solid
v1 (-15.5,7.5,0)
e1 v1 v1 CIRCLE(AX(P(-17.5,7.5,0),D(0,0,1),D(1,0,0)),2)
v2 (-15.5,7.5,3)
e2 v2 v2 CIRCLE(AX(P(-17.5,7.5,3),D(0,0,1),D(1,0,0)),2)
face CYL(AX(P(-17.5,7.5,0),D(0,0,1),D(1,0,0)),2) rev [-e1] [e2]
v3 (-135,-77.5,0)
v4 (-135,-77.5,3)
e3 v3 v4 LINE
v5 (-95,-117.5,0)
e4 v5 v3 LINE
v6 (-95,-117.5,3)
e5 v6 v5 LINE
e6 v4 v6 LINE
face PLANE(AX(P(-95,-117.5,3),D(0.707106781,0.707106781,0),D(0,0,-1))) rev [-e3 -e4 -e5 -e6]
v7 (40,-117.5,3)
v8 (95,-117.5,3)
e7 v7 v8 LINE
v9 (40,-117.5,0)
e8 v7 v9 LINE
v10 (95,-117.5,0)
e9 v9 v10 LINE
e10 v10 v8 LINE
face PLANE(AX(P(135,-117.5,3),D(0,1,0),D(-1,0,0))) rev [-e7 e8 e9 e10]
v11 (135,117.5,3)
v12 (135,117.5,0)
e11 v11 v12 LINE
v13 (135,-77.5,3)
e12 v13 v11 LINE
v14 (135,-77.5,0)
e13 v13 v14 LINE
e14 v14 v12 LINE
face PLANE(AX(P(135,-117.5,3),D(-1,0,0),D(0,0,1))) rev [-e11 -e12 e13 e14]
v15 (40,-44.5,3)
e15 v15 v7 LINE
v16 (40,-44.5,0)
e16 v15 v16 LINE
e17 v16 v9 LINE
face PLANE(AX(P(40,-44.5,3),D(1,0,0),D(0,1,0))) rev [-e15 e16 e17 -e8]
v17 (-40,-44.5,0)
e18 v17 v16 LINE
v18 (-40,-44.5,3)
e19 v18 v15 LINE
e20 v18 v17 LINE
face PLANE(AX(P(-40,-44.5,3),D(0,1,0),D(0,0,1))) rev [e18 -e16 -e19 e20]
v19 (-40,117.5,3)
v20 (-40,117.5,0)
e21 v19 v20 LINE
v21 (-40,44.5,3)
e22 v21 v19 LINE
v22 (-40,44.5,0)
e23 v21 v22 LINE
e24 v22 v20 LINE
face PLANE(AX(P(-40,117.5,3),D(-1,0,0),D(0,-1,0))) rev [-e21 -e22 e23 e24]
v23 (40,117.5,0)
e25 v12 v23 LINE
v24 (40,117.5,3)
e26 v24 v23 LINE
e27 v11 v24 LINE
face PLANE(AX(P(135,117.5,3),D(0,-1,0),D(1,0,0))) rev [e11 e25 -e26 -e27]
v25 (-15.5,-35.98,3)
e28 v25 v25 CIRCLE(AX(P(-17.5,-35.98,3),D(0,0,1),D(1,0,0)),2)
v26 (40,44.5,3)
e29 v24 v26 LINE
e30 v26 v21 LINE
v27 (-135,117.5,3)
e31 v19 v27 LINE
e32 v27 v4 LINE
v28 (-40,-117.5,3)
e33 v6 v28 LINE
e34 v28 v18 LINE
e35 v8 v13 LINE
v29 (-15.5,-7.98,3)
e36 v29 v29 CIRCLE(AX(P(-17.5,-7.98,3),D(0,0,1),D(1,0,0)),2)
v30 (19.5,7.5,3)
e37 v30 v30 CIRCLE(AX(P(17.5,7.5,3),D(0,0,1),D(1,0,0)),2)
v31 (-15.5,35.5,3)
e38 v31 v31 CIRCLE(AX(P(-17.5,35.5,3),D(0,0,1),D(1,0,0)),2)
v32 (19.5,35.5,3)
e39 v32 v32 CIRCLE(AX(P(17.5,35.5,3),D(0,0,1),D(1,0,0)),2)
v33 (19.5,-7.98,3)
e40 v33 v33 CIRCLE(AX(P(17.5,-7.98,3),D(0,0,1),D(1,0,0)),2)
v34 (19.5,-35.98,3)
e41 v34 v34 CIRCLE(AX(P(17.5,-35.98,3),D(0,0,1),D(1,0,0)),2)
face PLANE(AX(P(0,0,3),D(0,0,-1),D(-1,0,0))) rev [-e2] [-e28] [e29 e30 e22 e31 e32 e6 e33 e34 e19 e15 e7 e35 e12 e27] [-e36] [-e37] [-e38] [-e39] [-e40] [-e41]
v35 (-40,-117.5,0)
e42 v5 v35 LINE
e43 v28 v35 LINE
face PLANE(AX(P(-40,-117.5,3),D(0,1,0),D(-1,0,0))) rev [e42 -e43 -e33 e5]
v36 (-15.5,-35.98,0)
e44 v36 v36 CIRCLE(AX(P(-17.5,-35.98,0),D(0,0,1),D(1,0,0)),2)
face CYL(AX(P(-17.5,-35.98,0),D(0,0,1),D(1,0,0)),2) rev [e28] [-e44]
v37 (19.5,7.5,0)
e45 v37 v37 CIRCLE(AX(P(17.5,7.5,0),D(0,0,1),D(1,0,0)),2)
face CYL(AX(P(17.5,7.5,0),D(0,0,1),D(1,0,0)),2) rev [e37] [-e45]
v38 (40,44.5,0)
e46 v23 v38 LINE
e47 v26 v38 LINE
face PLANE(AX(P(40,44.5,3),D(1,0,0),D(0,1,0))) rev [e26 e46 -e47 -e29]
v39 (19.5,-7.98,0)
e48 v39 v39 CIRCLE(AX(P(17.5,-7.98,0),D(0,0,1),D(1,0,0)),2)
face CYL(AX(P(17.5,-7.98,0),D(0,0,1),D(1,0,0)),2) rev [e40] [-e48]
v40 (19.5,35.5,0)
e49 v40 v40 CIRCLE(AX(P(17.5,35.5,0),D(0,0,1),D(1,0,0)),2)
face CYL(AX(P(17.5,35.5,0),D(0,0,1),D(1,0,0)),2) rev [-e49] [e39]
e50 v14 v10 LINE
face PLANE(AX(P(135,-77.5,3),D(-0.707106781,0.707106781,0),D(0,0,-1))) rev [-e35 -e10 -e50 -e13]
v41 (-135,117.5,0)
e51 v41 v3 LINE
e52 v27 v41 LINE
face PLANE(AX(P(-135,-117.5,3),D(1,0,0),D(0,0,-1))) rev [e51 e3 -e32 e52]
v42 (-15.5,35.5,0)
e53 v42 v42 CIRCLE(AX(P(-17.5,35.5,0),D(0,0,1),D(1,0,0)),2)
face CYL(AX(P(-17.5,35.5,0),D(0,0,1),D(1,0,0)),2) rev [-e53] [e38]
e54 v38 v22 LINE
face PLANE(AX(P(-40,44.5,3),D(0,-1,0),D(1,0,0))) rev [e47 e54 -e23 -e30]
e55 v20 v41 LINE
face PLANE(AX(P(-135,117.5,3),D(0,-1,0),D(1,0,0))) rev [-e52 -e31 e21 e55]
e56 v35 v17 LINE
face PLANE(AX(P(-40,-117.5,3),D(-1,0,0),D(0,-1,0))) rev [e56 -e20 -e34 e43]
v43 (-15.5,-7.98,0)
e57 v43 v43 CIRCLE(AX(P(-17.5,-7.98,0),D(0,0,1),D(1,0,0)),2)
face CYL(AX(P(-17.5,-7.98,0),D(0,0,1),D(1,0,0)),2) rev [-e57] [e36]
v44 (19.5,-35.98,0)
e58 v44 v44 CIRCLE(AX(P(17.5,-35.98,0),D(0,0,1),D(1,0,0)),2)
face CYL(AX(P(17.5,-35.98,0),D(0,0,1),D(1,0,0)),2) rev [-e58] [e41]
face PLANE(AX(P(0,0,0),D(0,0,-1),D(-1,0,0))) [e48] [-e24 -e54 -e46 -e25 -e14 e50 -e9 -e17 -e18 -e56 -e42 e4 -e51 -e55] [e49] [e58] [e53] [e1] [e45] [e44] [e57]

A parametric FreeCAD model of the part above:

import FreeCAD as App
import Part
import Sketcher
Q = App.Units.Quantity


def edges_at(feature, points):
    """Names of the edges that pass closest to the given points."""
    edges = feature.Shape.Edges
    near = lambda p: min(range(len(edges)), key=lambda i: edges[i].distToShape(Part.Vertex(*p))[0])
    return sorted({f"Edge{near(p) + 1}" for p in points})

doc = App.newDocument("Part")
params = doc.addObject("Spreadsheet::Sheet", "Params")
for row, (alias, value) in enumerate([
    ("sketch1_width", "95 mm"),
    ("sketch1_width2", "80 mm"),
    ("sketch1_height", "73 mm"),
    ("sketch1_height2", "235 mm"),
    ("pad1_length", "3 mm"),
    ("sketch2_diameter", "4 mm"),
    ("chamfer_size", "40 mm"),
], start=1):
    params.set(f"A{row}", alias)
    params.set(f"B{row}", "=" + value)
    params.setAlias(f"B{row}", alias)

body = doc.addObject("PartDesign::Body", "Body")

# Sketch on XY plane
sketch1 = body.newObject("Sketcher::SketchObject", "Sketch")
sketch1.AttachmentSupport = (doc.getObject("XY_Plane"), [""])
sketch1.MapMode = "FlatFace"
sketch1.addGeometry(Part.LineSegment(App.Vector(-40, 44, 0), App.Vector(-40, 118, 0)), False)
sketch1.addGeometry(Part.LineSegment(App.Vector(-40, 118, 0), App.Vector(-135, 118, 0)), False)
sketch1.addGeometry(Part.LineSegment(App.Vector(-135, 118, 0), App.Vector(-135, -118, 0)), False)
sketch1.addGeometry(Part.LineSegment(App.Vector(-135, -118, 0), App.Vector(-40, -118, 0)), False)
sketch1.addGeometry(Part.LineSegment(App.Vector(-40, -118, 0), App.Vector(-40, -44, 0)), False)
sketch1.addGeometry(Part.LineSegment(App.Vector(-40, -44, 0), App.Vector(40, -44, 0)), False)
sketch1.addGeometry(Part.LineSegment(App.Vector(40, -44, 0), App.Vector(40, -118, 0)), False)
sketch1.addGeometry(Part.LineSegment(App.Vector(40, -118, 0), App.Vector(135, -118, 0)), False)
sketch1.addGeometry(Part.LineSegment(App.Vector(135, -118, 0), App.Vector(135, 118, 0)), False)
sketch1.addGeometry(Part.LineSegment(App.Vector(135, 118, 0), App.Vector(40, 118, 0)), False)
sketch1.addGeometry(Part.LineSegment(App.Vector(40, 118, 0), App.Vector(40, 44, 0)), False)
sketch1.addGeometry(Part.LineSegment(App.Vector(40, 44, 0), App.Vector(-40, 44, 0)), False)
sketch1.addConstraint(Sketcher.Constraint("Coincident", 0, 2, 1, 1))
sketch1.addConstraint(Sketcher.Constraint("Coincident", 1, 2, 2, 1))
sketch1.addConstraint(Sketcher.Constraint("Coincident", 2, 2, 3, 1))
sketch1.addConstraint(Sketcher.Constraint("Coincident", 3, 2, 4, 1))
sketch1.addConstraint(Sketcher.Constraint("Coincident", 4, 2, 5, 1))
sketch1.addConstraint(Sketcher.Constraint("Coincident", 5, 2, 6, 1))
sketch1.addConstraint(Sketcher.Constraint("Coincident", 6, 2, 7, 1))
sketch1.addConstraint(Sketcher.Constraint("Coincident", 7, 2, 8, 1))
sketch1.addConstraint(Sketcher.Constraint("Coincident", 8, 2, 9, 1))
sketch1.addConstraint(Sketcher.Constraint("Coincident", 9, 2, 10, 1))
sketch1.addConstraint(Sketcher.Constraint("Coincident", 10, 2, 11, 1))
sketch1.addConstraint(Sketcher.Constraint("Coincident", 11, 2, 0, 1))
sketch1.addConstraint(Sketcher.Constraint("Vertical", 0))
sketch1.addConstraint(Sketcher.Constraint("Horizontal", 1))
sketch1.addConstraint(Sketcher.Constraint("Vertical", 2))
sketch1.addConstraint(Sketcher.Constraint("Horizontal", 3))
sketch1.addConstraint(Sketcher.Constraint("Vertical", 4))
sketch1.addConstraint(Sketcher.Constraint("Horizontal", 5))
sketch1.addConstraint(Sketcher.Constraint("Vertical", 6))
sketch1.addConstraint(Sketcher.Constraint("Horizontal", 7))
sketch1.addConstraint(Sketcher.Constraint("Vertical", 8))
sketch1.addConstraint(Sketcher.Constraint("Horizontal", 9))
sketch1.addConstraint(Sketcher.Constraint("Vertical", 10))
sketch1.addConstraint(Sketcher.Constraint("Horizontal", 11))
sketch1.addConstraint(Sketcher.Constraint("Symmetric", 0, 2, 6, 2, -1, 1))
sketch1.addConstraint(Sketcher.Constraint("Symmetric", 2, 2, 8, 2, -1, 1))
sketch1.addConstraint(Sketcher.Constraint("Symmetric", 4, 2, 10, 2, -1, 1))
sketch1.addConstraint(Sketcher.Constraint("Symmetric", 3, 2, 6, 2, -2))
sketch1.addConstraint(Sketcher.Constraint("DistanceX", 1, 2, 1, 1, Q("95 mm")))
sketch1.addConstraint(Sketcher.Constraint("DistanceX", 5, 1, 5, 2, Q("80 mm")))
sketch1.addConstraint(Sketcher.Constraint("DistanceY", 0, 1, 0, 2, Q("73 mm")))
sketch1.addConstraint(Sketcher.Constraint("DistanceY", 2, 2, 2, 1, Q("235 mm")))
sketch1.setExpression("Constraints[28]", "Params.sketch1_width")
sketch1.setExpression("Constraints[29]", "Params.sketch1_width2")
sketch1.setExpression("Constraints[30]", "Params.sketch1_height")
sketch1.setExpression("Constraints[31]", "Params.sketch1_height2")
pad1 = body.newObject("PartDesign::Pad", "Pad")
pad1.Profile = sketch1
pad1.setExpression("Length", "Params.pad1_length")

# Sketch on XY plane
sketch2 = body.newObject("Sketcher::SketchObject", "Sketch001")
sketch2.AttachmentSupport = (doc.getObject("XY_Plane"), [""])
sketch2.MapMode = "FlatFace"
sketch2.AttachmentOffset = App.Placement(App.Vector(0, 0, 3), App.Rotation())
sketch2.addGeometry(Part.Circle(App.Vector(-17.5, -36, 0), App.Vector(0, 0, 1), 2), False)
sketch2.addGeometry(Part.Circle(App.Vector(17.5, -36, 0), App.Vector(0, 0, 1), 2), False)
sketch2.addGeometry(Part.Circle(App.Vector(-17.5, -8, 0), App.Vector(0, 0, 1), 2), False)
sketch2.addGeometry(Part.Circle(App.Vector(-17.5, 7.5, 0), App.Vector(0, 0, 1), 2), False)
sketch2.addGeometry(Part.Circle(App.Vector(17.5, 7.5, 0), App.Vector(0, 0, 1), 2), False)
sketch2.addGeometry(Part.Circle(App.Vector(17.5, -8, 0), App.Vector(0, 0, 1), 2), False)
sketch2.addGeometry(Part.Circle(App.Vector(-17.5, 35.5, 0), App.Vector(0, 0, 1), 2), False)
sketch2.addGeometry(Part.Circle(App.Vector(17.5, 35.5, 0), App.Vector(0, 0, 1), 2), False)
sketch2.addConstraint(Sketcher.Constraint("Equal", 0, 1))
sketch2.addConstraint(Sketcher.Constraint("Equal", 1, 2))
sketch2.addConstraint(Sketcher.Constraint("Equal", 2, 3))
sketch2.addConstraint(Sketcher.Constraint("Equal", 3, 4))
sketch2.addConstraint(Sketcher.Constraint("Equal", 4, 5))
sketch2.addConstraint(Sketcher.Constraint("Equal", 5, 6))
sketch2.addConstraint(Sketcher.Constraint("Equal", 6, 7))
sketch2.addConstraint(Sketcher.Constraint("Symmetric", 0, 3, 1, 3, -2))
sketch2.addConstraint(Sketcher.Constraint("Symmetric", 3, 3, 4, 3, -2))
sketch2.addConstraint(Sketcher.Constraint("Symmetric", 2, 3, 5, 3, -2))
sketch2.addConstraint(Sketcher.Constraint("Symmetric", 6, 3, 7, 3, -2))
sketch2.addConstraint(Sketcher.Constraint("Vertical", 0, 3, 2, 3))
sketch2.addConstraint(Sketcher.Constraint("Vertical", 2, 3, 3, 3))
sketch2.addConstraint(Sketcher.Constraint("Vertical", 3, 3, 6, 3))
sketch2.addConstraint(Sketcher.Constraint("Diameter", 0, Q("4 mm")))
sketch2.addConstraint(Sketcher.Constraint("DistanceX", 0, 3, 1, 3, Q("35 mm")))
sketch2.addConstraint(Sketcher.Constraint("DistanceY", 0, 3, 2, 3, Q("28 mm")))
sketch2.addConstraint(Sketcher.Constraint("DistanceY", 3, 3, 6, 3, Q("28 mm")))
sketch2.addConstraint(Sketcher.Constraint("DistanceY", -1, 1, 3, 3, Q("7.5 mm")))
sketch2.addConstraint(Sketcher.Constraint("DistanceY", 0, 3, -1, 1, Q("35.98 mm")))
sketch2.setExpression("Constraints[14]", "Params.sketch2_diameter")
pocket1 = body.newObject("PartDesign::Pocket", "Pocket")
pocket1.Profile = sketch2
pocket1.Type = "ThroughAll"
doc.recompute()

chamfer = body.newObject("PartDesign::Chamfer", "Chamfer")
chamfer.Base = (pocket1, edges_at(pocket1, [(135, -117.5, 1.5), (-135, -117.5, 1.5)]))
chamfer.setExpression("Size", "Params.chamfer_size")

doc.recompute()
